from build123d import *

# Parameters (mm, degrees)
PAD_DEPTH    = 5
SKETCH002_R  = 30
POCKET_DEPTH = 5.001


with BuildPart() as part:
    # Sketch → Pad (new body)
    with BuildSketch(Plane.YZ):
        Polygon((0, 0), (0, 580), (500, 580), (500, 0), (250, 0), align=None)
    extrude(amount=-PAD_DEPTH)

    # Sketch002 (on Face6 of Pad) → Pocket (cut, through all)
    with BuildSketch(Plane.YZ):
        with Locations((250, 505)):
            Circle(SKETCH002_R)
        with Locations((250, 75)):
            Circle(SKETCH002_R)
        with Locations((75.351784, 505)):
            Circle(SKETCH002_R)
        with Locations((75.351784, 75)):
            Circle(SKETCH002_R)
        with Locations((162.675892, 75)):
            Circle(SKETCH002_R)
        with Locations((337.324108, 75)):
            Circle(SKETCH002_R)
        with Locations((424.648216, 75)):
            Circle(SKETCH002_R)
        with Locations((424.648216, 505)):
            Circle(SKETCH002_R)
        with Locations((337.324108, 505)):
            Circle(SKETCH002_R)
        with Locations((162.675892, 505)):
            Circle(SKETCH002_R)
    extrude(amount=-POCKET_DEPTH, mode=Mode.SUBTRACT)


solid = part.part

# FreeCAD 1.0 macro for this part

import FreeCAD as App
import Part
import Sketcher

V = App.Vector


def add_polygon(sketch, points):
    """Adds a closed chain of lines whose ends are joined by coincident constraints."""
    first, n = sketch.GeometryCount, len(points)
    for a, b in zip(points, points[1:] + points[:1]):
        sketch.addGeometry(Part.LineSegment(App.Vector(*a, 0), App.Vector(*b, 0)), False)
    for i in range(n):
        sketch.addConstraint(Sketcher.Constraint("Coincident", first + i, 2, first + (i + 1) % n, 1))

doc = App.newDocument("Part")
body = doc.addObject("PartDesign::Body", "Body")

sketch1 = doc.addObject("Sketcher::SketchObject", "Sketch")
body.addObject(sketch1)
sketch1.AttachmentSupport = (doc.YZ_Plane, [""])
sketch1.MapMode = "FlatFace"
add_polygon(sketch1, [(0, 580), (0, 0), (500, 0), (500, 580)])
sketch1.addConstraint([
    Sketcher.Constraint("Vertical", 0),
    Sketcher.Constraint("Horizontal", 1),
    Sketcher.Constraint("Vertical", 2),
    Sketcher.Constraint("Horizontal", 3),
    Sketcher.Constraint("Coincident", 0, 2, -1, 1),
    Sketcher.Constraint("DistanceX", 1, 1, 1, 2, 500.0),
    Sketcher.Constraint("DistanceY", 0, 2, 0, 1, 580.0),
])
pad1 = doc.addObject("PartDesign::Pad", "Pad")
body.addObject(pad1)
pad1.Profile = sketch1
pad1.Length = 5
pad1.Reversed = True

sketch2 = doc.addObject("Sketcher::SketchObject", "Sketch001")
body.addObject(sketch2)
sketch2.AttachmentSupport = (doc.YZ_Plane, [""])
sketch2.MapMode = "FlatFace"
sketch2.addGeometry([
    Part.Circle(V(250, 505, 0), V(0, 0, 1), 30),
    Part.Circle(V(250, 75, 0), V(0, 0, 1), 30),
    Part.Circle(V(75.351784, 505, 0), V(0, 0, 1), 30),
    Part.Circle(V(75.351784, 75, 0), V(0, 0, 1), 30),
    Part.Circle(V(162.675892, 75, 0), V(0, 0, 1), 30),
    Part.Circle(V(337.324108, 75, 0), V(0, 0, 1), 30),
    Part.Circle(V(424.648216, 75, 0), V(0, 0, 1), 30),
    Part.Circle(V(424.648216, 505, 0), V(0, 0, 1), 30),
    Part.Circle(V(337.324108, 505, 0), V(0, 0, 1), 30),
    Part.Circle(V(162.675892, 505, 0), V(0, 0, 1), 30),
], False)
sketch2.addConstraint([
    Sketcher.Constraint("Equal", 0, 1),
    Sketcher.Constraint("Equal", 1, 2),
    Sketcher.Constraint("Equal", 2, 3),
    Sketcher.Constraint("Equal", 3, 4),
    Sketcher.Constraint("Equal", 4, 5),
    Sketcher.Constraint("Equal", 5, 6),
    Sketcher.Constraint("Equal", 6, 7),
    Sketcher.Constraint("Equal", 7, 8),
    Sketcher.Constraint("Equal", 8, 9),
    Sketcher.Constraint("Horizontal", 0, 3, 2, 3),
    Sketcher.Constraint("Horizontal", 1, 3, 3, 3),
    Sketcher.Constraint("Horizontal", 3, 3, 4, 3),
    Sketcher.Constraint("Horizontal", 4, 3, 5, 3),
    Sketcher.Constraint("Horizontal", 5, 3, 6, 3),
    Sketcher.Constraint("Horizontal", 2, 3, 7, 3),
    Sketcher.Constraint("Horizontal", 7, 3, 8, 3),
    Sketcher.Constraint("Horizontal", 8, 3, 9, 3),
    Sketcher.Constraint("Vertical", 0, 3, 1, 3),
    Sketcher.Constraint("Vertical", 2, 3, 3, 3),
    Sketcher.Constraint("Vertical", 6, 3, 7, 3),
    Sketcher.Constraint("Vertical", 5, 3, 8, 3),
    Sketcher.Constraint("Vertical", 4, 3, 9, 3),
    Sketcher.Constraint("Diameter", 0, 60.0),
    Sketcher.Constraint("DistanceX", -1, 1, 0, 3, 250.0),
    Sketcher.Constraint("DistanceY", -1, 1, 0, 3, 505.0),
    Sketcher.Constraint("DistanceY", -1, 1, 1, 3, 75.0),
    Sketcher.Constraint("DistanceX", -1, 1, 4, 3, 162.675892),
    Sketcher.Constraint("DistanceX", -1, 1, 5, 3, 337.324108),
    Sketcher.Constraint("DistanceX", 3, 3, 4, 3, 87.324108),
    Sketcher.Constraint("DistanceX", 3, 3, 6, 3, 349.296432),
])
pocket1 = doc.addObject("PartDesign::Pocket", "Pocket")
body.addObject(pocket1)
pocket1.Profile = sketch2
pocket1.Type = "ThroughAll"

doc.recompute()
